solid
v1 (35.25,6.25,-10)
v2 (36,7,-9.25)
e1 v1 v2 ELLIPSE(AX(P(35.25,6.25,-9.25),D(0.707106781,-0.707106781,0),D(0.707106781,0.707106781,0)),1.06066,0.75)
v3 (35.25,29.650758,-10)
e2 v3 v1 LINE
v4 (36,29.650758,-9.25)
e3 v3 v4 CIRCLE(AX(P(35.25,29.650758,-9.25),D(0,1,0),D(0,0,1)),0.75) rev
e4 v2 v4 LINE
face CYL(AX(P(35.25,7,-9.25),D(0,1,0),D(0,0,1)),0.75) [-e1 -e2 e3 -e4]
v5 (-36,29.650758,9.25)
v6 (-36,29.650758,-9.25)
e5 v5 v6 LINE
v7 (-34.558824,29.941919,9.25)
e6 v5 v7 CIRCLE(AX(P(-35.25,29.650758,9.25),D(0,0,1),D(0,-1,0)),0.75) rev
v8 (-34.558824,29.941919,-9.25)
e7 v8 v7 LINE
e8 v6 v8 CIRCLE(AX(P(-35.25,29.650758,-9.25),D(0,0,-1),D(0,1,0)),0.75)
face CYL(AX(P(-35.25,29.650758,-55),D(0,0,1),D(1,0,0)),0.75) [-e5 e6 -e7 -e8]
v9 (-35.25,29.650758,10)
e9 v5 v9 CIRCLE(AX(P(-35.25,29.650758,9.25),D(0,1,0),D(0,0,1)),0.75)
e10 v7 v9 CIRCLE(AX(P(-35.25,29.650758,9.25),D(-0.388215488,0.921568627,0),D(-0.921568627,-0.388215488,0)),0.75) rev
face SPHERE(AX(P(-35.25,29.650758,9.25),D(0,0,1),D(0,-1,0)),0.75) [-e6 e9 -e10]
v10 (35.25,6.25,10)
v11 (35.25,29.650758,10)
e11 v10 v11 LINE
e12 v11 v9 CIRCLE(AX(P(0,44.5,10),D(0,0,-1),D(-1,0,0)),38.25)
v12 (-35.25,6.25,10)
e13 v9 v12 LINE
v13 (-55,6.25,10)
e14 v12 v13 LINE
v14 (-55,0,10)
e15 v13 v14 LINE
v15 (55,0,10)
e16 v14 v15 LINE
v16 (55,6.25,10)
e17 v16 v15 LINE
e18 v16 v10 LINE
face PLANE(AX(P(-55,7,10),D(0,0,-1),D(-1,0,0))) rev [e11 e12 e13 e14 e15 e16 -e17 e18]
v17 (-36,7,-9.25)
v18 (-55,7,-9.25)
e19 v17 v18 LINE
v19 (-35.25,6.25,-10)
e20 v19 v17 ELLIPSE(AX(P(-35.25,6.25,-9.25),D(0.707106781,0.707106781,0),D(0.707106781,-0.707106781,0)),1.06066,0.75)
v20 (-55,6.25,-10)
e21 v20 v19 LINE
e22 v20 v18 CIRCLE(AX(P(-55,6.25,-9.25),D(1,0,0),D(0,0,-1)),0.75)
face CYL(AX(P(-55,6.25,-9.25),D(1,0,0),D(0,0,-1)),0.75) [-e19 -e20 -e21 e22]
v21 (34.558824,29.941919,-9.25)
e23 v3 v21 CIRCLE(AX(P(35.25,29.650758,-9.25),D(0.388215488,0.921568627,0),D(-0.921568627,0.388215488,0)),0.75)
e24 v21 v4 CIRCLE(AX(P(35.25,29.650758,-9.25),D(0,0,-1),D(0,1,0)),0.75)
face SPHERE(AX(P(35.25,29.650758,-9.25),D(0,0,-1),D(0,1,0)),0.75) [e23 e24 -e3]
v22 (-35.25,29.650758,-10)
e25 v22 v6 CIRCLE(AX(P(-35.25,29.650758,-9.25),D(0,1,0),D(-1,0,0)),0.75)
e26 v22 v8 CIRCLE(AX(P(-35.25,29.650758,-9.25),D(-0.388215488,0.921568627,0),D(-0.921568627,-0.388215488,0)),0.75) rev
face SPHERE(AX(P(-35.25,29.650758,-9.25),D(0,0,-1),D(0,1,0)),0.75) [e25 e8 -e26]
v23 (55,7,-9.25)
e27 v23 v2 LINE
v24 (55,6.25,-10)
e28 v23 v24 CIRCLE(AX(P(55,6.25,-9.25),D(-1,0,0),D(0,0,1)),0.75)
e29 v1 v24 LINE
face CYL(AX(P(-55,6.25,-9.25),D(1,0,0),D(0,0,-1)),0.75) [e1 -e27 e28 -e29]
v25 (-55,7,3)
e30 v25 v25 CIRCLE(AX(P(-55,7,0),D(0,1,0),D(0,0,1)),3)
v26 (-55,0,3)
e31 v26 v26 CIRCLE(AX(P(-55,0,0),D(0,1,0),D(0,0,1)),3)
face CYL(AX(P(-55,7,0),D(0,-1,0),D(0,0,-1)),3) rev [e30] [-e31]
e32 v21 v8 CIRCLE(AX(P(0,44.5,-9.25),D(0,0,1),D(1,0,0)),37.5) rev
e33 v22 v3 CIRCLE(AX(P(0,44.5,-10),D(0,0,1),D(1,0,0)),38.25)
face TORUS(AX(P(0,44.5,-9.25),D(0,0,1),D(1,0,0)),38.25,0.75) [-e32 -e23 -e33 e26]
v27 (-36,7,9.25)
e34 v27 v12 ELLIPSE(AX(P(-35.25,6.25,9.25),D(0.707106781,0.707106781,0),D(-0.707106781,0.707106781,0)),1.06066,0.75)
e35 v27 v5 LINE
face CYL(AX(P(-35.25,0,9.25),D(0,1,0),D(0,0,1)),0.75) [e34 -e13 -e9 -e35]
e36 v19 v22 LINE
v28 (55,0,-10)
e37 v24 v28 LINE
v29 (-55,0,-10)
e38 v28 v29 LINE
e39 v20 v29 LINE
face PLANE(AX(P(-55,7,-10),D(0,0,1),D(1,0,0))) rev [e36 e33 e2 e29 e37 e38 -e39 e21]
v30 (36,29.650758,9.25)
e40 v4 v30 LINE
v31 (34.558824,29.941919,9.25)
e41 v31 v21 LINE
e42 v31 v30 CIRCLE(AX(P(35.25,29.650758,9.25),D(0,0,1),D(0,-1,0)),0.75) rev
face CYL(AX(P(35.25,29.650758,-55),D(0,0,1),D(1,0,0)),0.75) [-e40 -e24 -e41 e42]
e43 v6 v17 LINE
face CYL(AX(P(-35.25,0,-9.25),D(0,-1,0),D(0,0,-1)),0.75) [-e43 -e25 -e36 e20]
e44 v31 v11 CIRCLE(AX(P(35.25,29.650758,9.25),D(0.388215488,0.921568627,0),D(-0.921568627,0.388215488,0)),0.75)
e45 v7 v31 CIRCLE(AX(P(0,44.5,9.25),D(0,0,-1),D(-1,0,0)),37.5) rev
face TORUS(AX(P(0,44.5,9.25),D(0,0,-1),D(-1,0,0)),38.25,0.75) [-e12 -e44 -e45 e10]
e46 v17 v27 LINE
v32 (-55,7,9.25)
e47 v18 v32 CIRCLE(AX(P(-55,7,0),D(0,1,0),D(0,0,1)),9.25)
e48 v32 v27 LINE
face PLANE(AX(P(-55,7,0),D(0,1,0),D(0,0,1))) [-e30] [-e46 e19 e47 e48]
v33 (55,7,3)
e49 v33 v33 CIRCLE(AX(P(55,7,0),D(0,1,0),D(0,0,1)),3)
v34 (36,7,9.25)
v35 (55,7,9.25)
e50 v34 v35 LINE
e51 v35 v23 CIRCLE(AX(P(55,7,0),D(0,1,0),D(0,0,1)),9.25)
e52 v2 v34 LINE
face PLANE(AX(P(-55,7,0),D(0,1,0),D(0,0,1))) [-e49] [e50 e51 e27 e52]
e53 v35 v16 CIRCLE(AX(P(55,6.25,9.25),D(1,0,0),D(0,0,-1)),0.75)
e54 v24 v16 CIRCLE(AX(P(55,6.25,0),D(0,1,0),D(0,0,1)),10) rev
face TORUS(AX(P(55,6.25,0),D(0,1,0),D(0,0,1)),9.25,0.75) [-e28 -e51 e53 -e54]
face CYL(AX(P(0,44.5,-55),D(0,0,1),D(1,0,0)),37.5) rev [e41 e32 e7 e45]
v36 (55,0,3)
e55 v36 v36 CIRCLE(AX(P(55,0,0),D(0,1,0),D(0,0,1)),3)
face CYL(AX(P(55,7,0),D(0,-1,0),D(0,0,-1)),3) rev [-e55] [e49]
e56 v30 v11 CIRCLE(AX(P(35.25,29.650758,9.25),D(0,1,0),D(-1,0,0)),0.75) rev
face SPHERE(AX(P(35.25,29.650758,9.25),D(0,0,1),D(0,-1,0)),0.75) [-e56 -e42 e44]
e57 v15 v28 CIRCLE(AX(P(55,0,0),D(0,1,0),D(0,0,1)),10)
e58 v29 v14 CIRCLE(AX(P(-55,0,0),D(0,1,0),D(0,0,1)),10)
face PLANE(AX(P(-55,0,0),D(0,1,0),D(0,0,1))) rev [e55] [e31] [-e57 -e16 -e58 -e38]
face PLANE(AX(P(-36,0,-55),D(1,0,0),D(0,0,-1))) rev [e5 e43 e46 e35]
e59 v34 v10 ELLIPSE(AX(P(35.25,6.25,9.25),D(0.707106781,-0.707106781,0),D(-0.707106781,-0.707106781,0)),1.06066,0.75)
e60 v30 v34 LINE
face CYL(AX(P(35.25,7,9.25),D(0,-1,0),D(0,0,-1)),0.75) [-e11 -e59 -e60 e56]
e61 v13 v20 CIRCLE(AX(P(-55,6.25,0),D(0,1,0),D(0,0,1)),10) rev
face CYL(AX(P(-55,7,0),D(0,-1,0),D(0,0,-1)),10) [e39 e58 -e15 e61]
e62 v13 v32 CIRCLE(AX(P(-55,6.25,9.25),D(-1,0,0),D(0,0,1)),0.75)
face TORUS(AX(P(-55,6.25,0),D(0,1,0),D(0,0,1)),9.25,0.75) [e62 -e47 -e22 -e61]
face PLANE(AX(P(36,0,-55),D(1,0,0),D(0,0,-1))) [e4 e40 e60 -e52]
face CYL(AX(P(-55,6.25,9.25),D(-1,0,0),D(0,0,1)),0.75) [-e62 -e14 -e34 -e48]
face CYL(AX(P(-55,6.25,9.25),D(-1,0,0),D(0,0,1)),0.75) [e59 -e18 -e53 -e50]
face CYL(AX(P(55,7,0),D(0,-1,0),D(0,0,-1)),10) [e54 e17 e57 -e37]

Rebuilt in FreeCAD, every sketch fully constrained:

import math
import FreeCAD as App
import Part
import Sketcher


def edges_at(feature, points):
    """Names of the edges that pass closest to the given points."""
    edges = feature.Shape.Edges
    near = lambda p: min(range(len(edges)), key=lambda i: edges[i].distToShape(Part.Vertex(*p))[0])
    return sorted({f"Edge{near(p) + 1}" for p in points})

doc = App.newDocument("Part")
body = doc.addObject("PartDesign::Body", "Body")

sketch1 = body.newObject("Sketcher::SketchObject", "Sketch")
sketch1.AttachmentSupport = (doc.getObject("XZ_Plane"), [""])
sketch1.MapMode = "FlatFace"
sketch1.addGeometry([
    Part.LineSegment(App.Vector(55, -10, 0), App.Vector(-55, -10, 0)),
    Part.ArcOfCircle(Part.Circle(App.Vector(-55, 0, 0), App.Vector(0, 0, 1), 10), math.radians(90), math.radians(270)),
    Part.LineSegment(App.Vector(-55, 10, 0), App.Vector(55, 10, 0)),
    Part.ArcOfCircle(Part.Circle(App.Vector(55, 0, 0), App.Vector(0, 0, 1), 10), math.radians(-90), math.radians(90)),
    Part.Circle(App.Vector(55, 0, 0), App.Vector(0, 0, 1), 3),
    Part.Circle(App.Vector(-55, 0, 0), App.Vector(0, 0, 1), 3),
], False)
sketch1.addConstraint([
    Sketcher.Constraint("Tangent", 0, 2, 1, 2),
    Sketcher.Constraint("Tangent", 1, 1, 2, 1),
    Sketcher.Constraint("Tangent", 2, 2, 3, 2),
    Sketcher.Constraint("Tangent", 3, 1, 0, 1),
    Sketcher.Constraint("Horizontal", 0),
    Sketcher.Constraint("Horizontal", 2),
    Sketcher.Constraint("Coincident", 4, 3, 3, 3),
    Sketcher.Constraint("Coincident", 5, 3, 1, 3),
    Sketcher.Constraint("Equal", 4, 5),
    Sketcher.Constraint("Symmetric", 1, 3, 3, 3, -1, 1),
    Sketcher.Constraint("Diameter", 4, 6.0),
    Sketcher.Constraint("Radius", 1, 10.0),
    Sketcher.Constraint("DistanceX", 0, 2, 0, 1, 110.0),
])
pad1 = body.newObject("PartDesign::Pad", "Pad")
pad1.Profile = sketch1
pad1.Length = 7
pad1.Reversed = True

sketch2 = body.newObject("Sketcher::SketchObject", "Sketch001")
sketch2.AttachmentSupport = (doc.getObject("XY_Plane"), [""])
sketch2.MapMode = "FlatFace"
sketch2.AttachmentOffset = App.Placement(App.Vector(0, 0, 10), App.Rotation())
sketch2.addGeometry([
    Part.LineSegment(App.Vector(0, 7, 0), App.Vector(36, 7, 0)),
    Part.LineSegment(App.Vector(36, 7, 0), App.Vector(36, 34, 0)),
    Part.ArcOfCircle(Part.Circle(App.Vector(0, 44.5, 0), App.Vector(0, 0, 1), 37.5), math.radians(-90), math.radians(-16.260205)),
    Part.LineSegment(App.Vector(-36, 7, 0), App.Vector(0, 7, 0)),
    Part.ArcOfCircle(Part.Circle(App.Vector(0, 44.5, 0), App.Vector(0, 0, 1), 37.5), math.radians(-163.739795), math.radians(-90)),
    Part.LineSegment(App.Vector(-36, 34, 0), App.Vector(-36, 7, 0)),
], False)
sketch2.addConstraint([
    Sketcher.Constraint("Coincident", 0, 2, 1, 1),
    Sketcher.Constraint("Coincident", 1, 2, 2, 2),
    Sketcher.Constraint("Tangent", 2, 1, 0, 1),
    Sketcher.Constraint("Tangent", 3, 2, 4, 2),
    Sketcher.Constraint("Coincident", 4, 1, 5, 1),
    Sketcher.Constraint("Coincident", 5, 2, 3, 1),
    Sketcher.Constraint("Horizontal", 0),
    Sketcher.Constraint("Vertical", 1),
    Sketcher.Constraint("Horizontal", 3),
    Sketcher.Constraint("Vertical", 5),
    Sketcher.Constraint("Coincident", 4, 3, 2, 3),
    Sketcher.Constraint("Equal", 2, 4),
    Sketcher.Constraint("Symmetric", 1, 2, 4, 1, -2),
    Sketcher.Constraint("Radius", 2, 37.5),
    Sketcher.Constraint("DistanceX", 0, 1, 0, 2, 36.0),
    Sketcher.Constraint("DistanceY", -1, 1, 0, 2, 7.0),
])
pad2 = body.newObject("PartDesign::Pad", "Pad001")
pad2.Profile = sketch2
pad2.Length = 20
pad2.Reversed = True
doc.recompute()

fillet = body.newObject("PartDesign::Fillet", "Fillet")
fillet.Base = (pad2, edges_at(pad2, [
    (65, 7, 0),
    (45.5, 7, -10),
    (45.5, 7, 10),
    (36, 20.5, 10),
    (36, 34, 0),
    (0, 7, -10),
    (0, 7, 10),
    (36, 20.5, -10),
    (-45.5, 7, -10),
    (-36, 20.5, -10),
    (-36, 20.5, 10),
    (-36, 34, 0),
    (-65, 7, 0),
    (-45.5, 7, 10),
]))
fillet.Radius = 0.75

doc.recompute()
